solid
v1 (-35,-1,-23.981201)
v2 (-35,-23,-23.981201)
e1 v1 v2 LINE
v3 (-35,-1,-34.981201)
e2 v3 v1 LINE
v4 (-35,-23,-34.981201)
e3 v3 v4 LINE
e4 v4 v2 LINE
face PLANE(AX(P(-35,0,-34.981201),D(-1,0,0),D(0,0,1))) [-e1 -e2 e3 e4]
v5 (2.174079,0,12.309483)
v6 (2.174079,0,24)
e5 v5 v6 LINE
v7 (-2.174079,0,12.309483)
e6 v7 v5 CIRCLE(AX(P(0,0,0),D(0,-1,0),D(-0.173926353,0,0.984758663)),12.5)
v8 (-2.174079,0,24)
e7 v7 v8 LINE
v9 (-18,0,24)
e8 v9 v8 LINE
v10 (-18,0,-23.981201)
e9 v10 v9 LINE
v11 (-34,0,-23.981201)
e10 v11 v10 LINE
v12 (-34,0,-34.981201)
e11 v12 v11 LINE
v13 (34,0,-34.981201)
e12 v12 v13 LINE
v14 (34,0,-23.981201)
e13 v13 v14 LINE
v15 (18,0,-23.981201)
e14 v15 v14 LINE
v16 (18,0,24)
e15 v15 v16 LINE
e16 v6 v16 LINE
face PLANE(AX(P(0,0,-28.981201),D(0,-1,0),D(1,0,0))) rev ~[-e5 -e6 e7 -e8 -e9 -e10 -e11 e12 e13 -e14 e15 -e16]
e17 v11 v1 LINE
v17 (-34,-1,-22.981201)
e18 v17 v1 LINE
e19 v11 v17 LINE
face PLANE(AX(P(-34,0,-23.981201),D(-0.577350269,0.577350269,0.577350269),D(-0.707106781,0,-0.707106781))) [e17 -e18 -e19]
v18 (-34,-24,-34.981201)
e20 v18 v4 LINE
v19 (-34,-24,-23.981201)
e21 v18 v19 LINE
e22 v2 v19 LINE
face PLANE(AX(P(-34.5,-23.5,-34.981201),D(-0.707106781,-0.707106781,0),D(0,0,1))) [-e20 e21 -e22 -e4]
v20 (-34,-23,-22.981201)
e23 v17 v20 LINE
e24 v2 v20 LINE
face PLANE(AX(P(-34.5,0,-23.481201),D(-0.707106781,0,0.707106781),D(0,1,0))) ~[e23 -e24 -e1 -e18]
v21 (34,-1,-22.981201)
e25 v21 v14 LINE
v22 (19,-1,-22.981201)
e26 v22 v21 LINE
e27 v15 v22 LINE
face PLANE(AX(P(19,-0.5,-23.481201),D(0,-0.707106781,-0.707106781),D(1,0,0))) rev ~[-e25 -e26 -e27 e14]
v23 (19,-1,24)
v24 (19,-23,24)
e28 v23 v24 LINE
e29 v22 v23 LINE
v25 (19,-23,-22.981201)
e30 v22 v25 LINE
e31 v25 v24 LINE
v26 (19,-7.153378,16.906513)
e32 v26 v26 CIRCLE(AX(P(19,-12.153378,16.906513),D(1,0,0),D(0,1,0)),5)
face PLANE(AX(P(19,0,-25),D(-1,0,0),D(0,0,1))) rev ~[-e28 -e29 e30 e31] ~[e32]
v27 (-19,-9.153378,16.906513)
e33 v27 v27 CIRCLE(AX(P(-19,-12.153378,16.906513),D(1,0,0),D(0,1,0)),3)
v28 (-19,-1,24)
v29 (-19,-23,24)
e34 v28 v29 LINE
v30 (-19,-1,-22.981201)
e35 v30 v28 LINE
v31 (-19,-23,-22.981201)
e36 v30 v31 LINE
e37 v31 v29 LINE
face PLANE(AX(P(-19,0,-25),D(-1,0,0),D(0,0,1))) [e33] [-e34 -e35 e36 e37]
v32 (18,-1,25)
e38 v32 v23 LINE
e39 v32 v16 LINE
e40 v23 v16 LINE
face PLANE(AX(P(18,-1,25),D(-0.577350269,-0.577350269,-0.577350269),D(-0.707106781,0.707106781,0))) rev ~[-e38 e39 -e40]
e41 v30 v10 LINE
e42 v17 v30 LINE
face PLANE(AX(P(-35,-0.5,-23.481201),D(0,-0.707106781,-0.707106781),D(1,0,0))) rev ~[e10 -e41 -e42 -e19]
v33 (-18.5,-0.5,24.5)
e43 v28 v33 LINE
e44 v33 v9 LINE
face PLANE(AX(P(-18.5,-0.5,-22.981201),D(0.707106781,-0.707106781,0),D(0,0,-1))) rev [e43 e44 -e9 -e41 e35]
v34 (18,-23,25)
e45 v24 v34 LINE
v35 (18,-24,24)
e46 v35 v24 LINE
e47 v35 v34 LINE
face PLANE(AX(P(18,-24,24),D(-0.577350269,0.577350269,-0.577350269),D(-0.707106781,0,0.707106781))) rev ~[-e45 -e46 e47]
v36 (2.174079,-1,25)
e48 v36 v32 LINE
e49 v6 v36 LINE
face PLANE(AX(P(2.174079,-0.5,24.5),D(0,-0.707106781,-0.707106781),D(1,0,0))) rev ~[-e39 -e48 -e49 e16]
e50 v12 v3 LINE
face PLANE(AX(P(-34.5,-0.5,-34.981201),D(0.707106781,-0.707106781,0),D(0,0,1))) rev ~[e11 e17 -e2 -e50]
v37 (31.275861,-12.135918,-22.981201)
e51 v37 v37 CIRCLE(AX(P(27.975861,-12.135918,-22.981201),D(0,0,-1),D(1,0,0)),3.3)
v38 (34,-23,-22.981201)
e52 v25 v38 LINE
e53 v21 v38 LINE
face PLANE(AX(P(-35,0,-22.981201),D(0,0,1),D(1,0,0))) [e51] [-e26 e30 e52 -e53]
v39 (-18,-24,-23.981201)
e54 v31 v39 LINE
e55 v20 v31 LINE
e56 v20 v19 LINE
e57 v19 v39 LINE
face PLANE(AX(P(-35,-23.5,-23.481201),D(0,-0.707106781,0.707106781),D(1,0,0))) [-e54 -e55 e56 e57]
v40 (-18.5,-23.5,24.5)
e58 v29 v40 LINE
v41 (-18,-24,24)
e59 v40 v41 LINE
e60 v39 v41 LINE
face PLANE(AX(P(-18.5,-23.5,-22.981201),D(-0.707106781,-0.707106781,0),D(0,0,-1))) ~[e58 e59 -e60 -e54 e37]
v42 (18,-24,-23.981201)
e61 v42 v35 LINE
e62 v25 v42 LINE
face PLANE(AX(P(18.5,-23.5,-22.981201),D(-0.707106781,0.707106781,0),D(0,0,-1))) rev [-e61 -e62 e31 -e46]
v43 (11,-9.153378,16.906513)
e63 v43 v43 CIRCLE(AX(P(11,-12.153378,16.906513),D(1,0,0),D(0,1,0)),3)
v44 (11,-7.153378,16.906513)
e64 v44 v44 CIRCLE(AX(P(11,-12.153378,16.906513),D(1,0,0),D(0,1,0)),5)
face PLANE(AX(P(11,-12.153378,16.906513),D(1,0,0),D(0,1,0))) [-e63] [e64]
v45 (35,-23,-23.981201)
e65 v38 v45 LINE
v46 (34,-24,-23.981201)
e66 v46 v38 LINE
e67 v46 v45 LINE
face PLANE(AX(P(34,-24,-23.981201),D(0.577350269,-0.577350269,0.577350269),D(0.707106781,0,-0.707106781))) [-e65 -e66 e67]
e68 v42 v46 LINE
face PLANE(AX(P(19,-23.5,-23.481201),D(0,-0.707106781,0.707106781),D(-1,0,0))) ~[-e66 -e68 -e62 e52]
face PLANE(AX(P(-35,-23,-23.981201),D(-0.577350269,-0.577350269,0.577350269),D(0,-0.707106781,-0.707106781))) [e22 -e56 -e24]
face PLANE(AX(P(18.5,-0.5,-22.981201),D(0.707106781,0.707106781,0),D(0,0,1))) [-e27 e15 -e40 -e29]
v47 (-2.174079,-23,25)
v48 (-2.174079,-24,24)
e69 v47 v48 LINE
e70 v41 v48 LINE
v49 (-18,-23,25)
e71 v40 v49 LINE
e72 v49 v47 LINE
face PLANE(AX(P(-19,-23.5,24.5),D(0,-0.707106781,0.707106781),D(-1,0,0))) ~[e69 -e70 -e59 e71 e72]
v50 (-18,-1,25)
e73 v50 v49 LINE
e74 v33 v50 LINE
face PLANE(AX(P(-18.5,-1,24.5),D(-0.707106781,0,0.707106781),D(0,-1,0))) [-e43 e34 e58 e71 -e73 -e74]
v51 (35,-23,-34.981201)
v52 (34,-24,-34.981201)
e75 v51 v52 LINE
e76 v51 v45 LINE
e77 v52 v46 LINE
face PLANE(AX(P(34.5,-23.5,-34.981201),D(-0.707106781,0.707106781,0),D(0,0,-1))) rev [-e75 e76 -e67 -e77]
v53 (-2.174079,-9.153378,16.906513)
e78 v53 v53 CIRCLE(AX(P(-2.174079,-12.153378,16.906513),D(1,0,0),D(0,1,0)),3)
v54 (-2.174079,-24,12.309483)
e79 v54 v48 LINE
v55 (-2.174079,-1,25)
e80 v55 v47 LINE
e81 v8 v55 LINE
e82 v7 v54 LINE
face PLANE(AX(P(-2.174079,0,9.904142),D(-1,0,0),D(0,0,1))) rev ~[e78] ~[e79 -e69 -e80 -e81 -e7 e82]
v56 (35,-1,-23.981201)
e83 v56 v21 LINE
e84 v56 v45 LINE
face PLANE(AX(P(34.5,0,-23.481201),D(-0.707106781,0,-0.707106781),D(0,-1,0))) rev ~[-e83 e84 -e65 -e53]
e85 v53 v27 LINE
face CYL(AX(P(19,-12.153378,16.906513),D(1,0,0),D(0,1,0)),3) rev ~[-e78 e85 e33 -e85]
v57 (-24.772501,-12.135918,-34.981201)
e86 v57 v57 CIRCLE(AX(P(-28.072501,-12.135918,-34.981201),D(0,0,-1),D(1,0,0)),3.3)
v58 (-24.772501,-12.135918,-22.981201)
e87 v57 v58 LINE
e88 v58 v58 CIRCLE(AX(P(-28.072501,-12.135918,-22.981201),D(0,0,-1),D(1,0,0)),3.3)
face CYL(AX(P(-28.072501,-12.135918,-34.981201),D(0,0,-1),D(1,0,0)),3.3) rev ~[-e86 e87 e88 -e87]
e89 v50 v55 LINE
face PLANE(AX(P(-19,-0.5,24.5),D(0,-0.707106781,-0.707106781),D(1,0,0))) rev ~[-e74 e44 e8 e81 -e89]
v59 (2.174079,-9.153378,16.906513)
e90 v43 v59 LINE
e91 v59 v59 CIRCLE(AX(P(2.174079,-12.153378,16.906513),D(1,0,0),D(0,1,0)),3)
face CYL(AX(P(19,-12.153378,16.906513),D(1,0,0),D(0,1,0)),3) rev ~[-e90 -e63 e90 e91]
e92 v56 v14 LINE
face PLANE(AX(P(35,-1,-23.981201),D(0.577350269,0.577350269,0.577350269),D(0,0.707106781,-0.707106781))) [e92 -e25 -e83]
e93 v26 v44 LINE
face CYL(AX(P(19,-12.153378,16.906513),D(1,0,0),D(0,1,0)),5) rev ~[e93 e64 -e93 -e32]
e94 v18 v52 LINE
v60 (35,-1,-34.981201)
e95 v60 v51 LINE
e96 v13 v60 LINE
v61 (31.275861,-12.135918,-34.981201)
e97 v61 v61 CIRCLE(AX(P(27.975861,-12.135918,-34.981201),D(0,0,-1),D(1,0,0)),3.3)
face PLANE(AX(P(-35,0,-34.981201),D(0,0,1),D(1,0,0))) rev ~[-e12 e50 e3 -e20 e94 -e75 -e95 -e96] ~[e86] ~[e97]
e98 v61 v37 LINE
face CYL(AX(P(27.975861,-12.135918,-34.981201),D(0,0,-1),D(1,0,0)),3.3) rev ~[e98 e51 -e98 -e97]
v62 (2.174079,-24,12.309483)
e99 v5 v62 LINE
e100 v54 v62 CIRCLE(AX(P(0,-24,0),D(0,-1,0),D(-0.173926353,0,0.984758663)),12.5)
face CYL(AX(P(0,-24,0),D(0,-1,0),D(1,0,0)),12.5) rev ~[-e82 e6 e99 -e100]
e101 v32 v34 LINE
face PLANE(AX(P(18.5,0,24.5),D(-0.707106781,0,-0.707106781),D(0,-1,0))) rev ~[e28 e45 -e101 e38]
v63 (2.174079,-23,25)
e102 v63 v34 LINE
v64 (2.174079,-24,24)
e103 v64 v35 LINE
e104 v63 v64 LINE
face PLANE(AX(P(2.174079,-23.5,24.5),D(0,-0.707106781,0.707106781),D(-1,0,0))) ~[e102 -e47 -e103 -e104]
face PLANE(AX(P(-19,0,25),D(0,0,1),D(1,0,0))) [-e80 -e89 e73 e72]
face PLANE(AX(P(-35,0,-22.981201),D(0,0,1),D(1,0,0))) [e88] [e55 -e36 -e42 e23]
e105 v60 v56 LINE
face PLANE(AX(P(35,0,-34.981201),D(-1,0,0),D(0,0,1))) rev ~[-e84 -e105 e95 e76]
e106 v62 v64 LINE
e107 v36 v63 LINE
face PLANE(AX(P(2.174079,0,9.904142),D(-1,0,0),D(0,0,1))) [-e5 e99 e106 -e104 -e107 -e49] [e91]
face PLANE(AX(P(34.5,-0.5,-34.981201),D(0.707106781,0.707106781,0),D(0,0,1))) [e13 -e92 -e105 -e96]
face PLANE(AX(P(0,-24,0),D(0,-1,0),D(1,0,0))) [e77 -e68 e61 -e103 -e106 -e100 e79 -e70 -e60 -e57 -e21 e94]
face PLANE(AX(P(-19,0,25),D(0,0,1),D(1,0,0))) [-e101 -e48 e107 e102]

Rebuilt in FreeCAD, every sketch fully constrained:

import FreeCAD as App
import Part
import Sketcher

V = App.Vector
Q = App.Units.Quantity


def edges_at(feature, points):
    """Names of the edges that pass closest to the given points."""
    edges = feature.Shape.Edges
    near = lambda p: min(range(len(edges)), key=lambda i: edges[i].distToShape(Part.Vertex(*p))[0])
    return sorted({f"Edge{near(p) + 1}" for p in points})

doc = App.newDocument("Part")
body = doc.addObject("PartDesign::Body", "Body")

# Sketch on XZ plane
sketch1 = body.newObject("Sketcher::SketchObject", "Sketch")
sketch1.AttachmentSupport = (doc.getObject("XZ_Plane"), [""])
sketch1.MapMode = "FlatFace"
sketch1.addGeometry([
    Part.LineSegment(V(-35, -22.981201, 0), V(-35, -34.981201, 0)),
    Part.LineSegment(V(-35, -34.981201, 0), V(35, -34.981201, 0)),
    Part.LineSegment(V(35, -34.981201, 0), V(35, -22.981201, 0)),
    Part.LineSegment(V(35, -22.981201, 0), V(-35, -22.981201, 0)),
], False)
sketch1.addConstraint([
    Sketcher.Constraint("Coincident", 0, 2, 1, 1),
    Sketcher.Constraint("Coincident", 1, 2, 2, 1),
    Sketcher.Constraint("Coincident", 2, 2, 3, 1),
    Sketcher.Constraint("Coincident", 3, 2, 0, 1),
    Sketcher.Constraint("Vertical", 0),
    Sketcher.Constraint("Horizontal", 1),
    Sketcher.Constraint("Vertical", 2),
    Sketcher.Constraint("Horizontal", 3),
    Sketcher.Constraint("DistanceX", 1, 1, 1, 2, Q("70 mm")),
    Sketcher.Constraint("DistanceY", 0, 2, 0, 1, Q("12 mm")),
    Sketcher.Constraint("DistanceX", 0, 2, -1, 1, Q("35 mm")),
    Sketcher.Constraint("DistanceY", 0, 2, -1, 1, Q("34.981201 mm")),
])
pad1 = body.newObject("PartDesign::Pad", "Pad")
pad1.Profile = sketch1
pad1.Length = 24

# Sketch on XZ plane
sketch2 = body.newObject("Sketcher::SketchObject", "Sketch001")
sketch2.AttachmentSupport = (doc.getObject("XZ_Plane"), [""])
sketch2.MapMode = "FlatFace"
sketch2.addGeometry([
    Part.LineSegment(V(-19, 25, 0), V(-19, -25, 0)),
    Part.LineSegment(V(-19, -25, 0), V(19, -25, 0)),
    Part.LineSegment(V(19, -25, 0), V(19, 25, 0)),
    Part.LineSegment(V(19, 25, 0), V(-19, 25, 0)),
], False)
sketch2.addConstraint([
    Sketcher.Constraint("Coincident", 0, 2, 1, 1),
    Sketcher.Constraint("Coincident", 1, 2, 2, 1),
    Sketcher.Constraint("Coincident", 2, 2, 3, 1),
    Sketcher.Constraint("Coincident", 3, 2, 0, 1),
    Sketcher.Constraint("Vertical", 0),
    Sketcher.Constraint("Horizontal", 1),
    Sketcher.Constraint("Vertical", 2),
    Sketcher.Constraint("Horizontal", 3),
    Sketcher.Constraint("Symmetric", 0, 2, 2, 2, -1, 1),
    Sketcher.Constraint("DistanceX", 1, 1, 1, 2, Q("38 mm")),
    Sketcher.Constraint("DistanceY", 0, 2, 0, 1, Q("50 mm")),
])
pad2 = body.newObject("PartDesign::Pad", "Pad001")
pad2.Profile = sketch2
pad2.Length = 24

# Sketch on XZ plane
sketch3 = body.newObject("Sketcher::SketchObject", "Sketch002")
sketch3.AttachmentSupport = (doc.getObject("XZ_Plane"), [""])
sketch3.MapMode = "FlatFace"
sketch3.AttachmentOffset = App.Placement(V(0, 0, 24), App.Rotation())
sketch3.addGeometry(Part.Circle(V(0, 0, 0), V(0, 0, 1), 12.5), False)
sketch3.addConstraint([
    Sketcher.Constraint("Coincident", 0, 3, -1, 1),
    Sketcher.Constraint("Diameter", 0, Q("25 mm")),
])
pocket1 = body.newObject("PartDesign::Pocket", "Pocket")
pocket1.Profile = sketch3
pocket1.Length = 24

# Sketch on XZ plane
sketch4 = body.newObject("Sketcher::SketchObject", "Sketch003")
sketch4.AttachmentSupport = (doc.getObject("XZ_Plane"), [""])
sketch4.MapMode = "FlatFace"
sketch4.addGeometry([
    Part.LineSegment(V(-2.174079, 28.747369, 0), V(-2.174079, 9.904142, 0)),
    Part.LineSegment(V(-2.174079, 9.904142, 0), V(2.174079, 9.904142, 0)),
    Part.LineSegment(V(2.174079, 9.904142, 0), V(2.174079, 28.747369, 0)),
    Part.LineSegment(V(2.174079, 28.747369, 0), V(-2.174079, 28.747369, 0)),
], False)
sketch4.addConstraint([
    Sketcher.Constraint("Coincident", 0, 2, 1, 1),
    Sketcher.Constraint("Coincident", 1, 2, 2, 1),
    Sketcher.Constraint("Coincident", 2, 2, 3, 1),
    Sketcher.Constraint("Coincident", 3, 2, 0, 1),
    Sketcher.Constraint("Vertical", 0),
    Sketcher.Constraint("Horizontal", 1),
    Sketcher.Constraint("Vertical", 2),
    Sketcher.Constraint("Horizontal", 3),
    Sketcher.Constraint("DistanceX", 1, 1, 1, 2, Q("4.348159 mm")),
    Sketcher.Constraint("DistanceY", 0, 2, 0, 1, Q("18.843226 mm")),
    Sketcher.Constraint("DistanceX", 0, 2, -1, 1, Q("2.174079 mm")),
    Sketcher.Constraint("DistanceY", -1, 1, 2, 2, Q("28.747369 mm")),
])
pocket2 = body.newObject("PartDesign::Pocket", "Pocket001")
pocket2.Profile = sketch4
pocket2.Length = 24
pocket2.Reversed = True

# Sketch on XY plane
sketch5 = body.newObject("Sketcher::SketchObject", "Sketch004")
sketch5.AttachmentSupport = (doc.getObject("XY_Plane"), [""])
sketch5.MapMode = "FlatFace"
sketch5.AttachmentOffset = App.Placement(V(0, 0, -34.981201), App.Rotation())
sketch5.addGeometry(Part.Circle(V(-28.072501, -12.135918, 0), V(0, 0, 1), 3.3), False)
sketch5.addConstraint([
    Sketcher.Constraint("Diameter", 0, Q("6.6 mm")),
    Sketcher.Constraint("DistanceX", 0, 3, -1, 1, Q("28.072501 mm")),
    Sketcher.Constraint("DistanceY", 0, 3, -1, 1, Q("12.135918 mm")),
])
pocket3 = body.newObject("PartDesign::Pocket", "Pocket002")
pocket3.Profile = sketch5
pocket3.Length = 25
pocket3.Reversed = True

# Sketch on XY plane
sketch6 = body.newObject("Sketcher::SketchObject", "Sketch005")
sketch6.AttachmentSupport = (doc.getObject("XY_Plane"), [""])
sketch6.MapMode = "FlatFace"
sketch6.AttachmentOffset = App.Placement(V(0, 0, -34.981201), App.Rotation())
sketch6.addGeometry(Part.Circle(V(27.975861, -12.135918, 0), V(0, 0, 1), 3.3), False)
sketch6.addConstraint([
    Sketcher.Constraint("Diameter", 0, Q("6.6 mm")),
    Sketcher.Constraint("DistanceX", -1, 1, 0, 3, Q("27.975861 mm")),
    Sketcher.Constraint("DistanceY", 0, 3, -1, 1, Q("12.135918 mm")),
])
pocket4 = body.newObject("PartDesign::Pocket", "Pocket003")
pocket4.Profile = sketch6
pocket4.Length = 25
pocket4.Reversed = True

# Sketch on YZ plane
sketch7 = body.newObject("Sketcher::SketchObject", "Sketch006")
sketch7.AttachmentSupport = (doc.getObject("YZ_Plane"), [""])
sketch7.MapMode = "FlatFace"
sketch7.AttachmentOffset = App.Placement(V(0, 0, 19), App.Rotation())
sketch7.addGeometry(Part.Circle(V(-12.153378, 16.906513, 0), V(0, 0, 1), 3), False)
sketch7.addConstraint([
    Sketcher.Constraint("Diameter", 0, Q("6 mm")),
    Sketcher.Constraint("DistanceX", 0, 3, -1, 1, Q("12.153378 mm")),
    Sketcher.Constraint("DistanceY", -1, 1, 0, 3, Q("16.906513 mm")),
])
pocket5 = body.newObject("PartDesign::Pocket", "Pocket004")
pocket5.Profile = sketch7
pocket5.Length = 50

# Sketch on YZ plane
sketch8 = body.newObject("Sketcher::SketchObject", "Sketch007")
sketch8.AttachmentSupport = (doc.getObject("YZ_Plane"), [""])
sketch8.MapMode = "FlatFace"
sketch8.AttachmentOffset = App.Placement(V(0, 0, 19), App.Rotation())
sketch8.addGeometry([
    Part.Circle(V(-12.153378, 16.906513, 0), V(0, 0, 1), 5),
    Part.Circle(V(-12.153378, 16.906513, 0), V(0, 0, 1), 3),
], False)
sketch8.addConstraint([
    Sketcher.Constraint("Coincident", 1, 3, 0, 3),
    Sketcher.Constraint("Diameter", 0, Q("10 mm")),
    Sketcher.Constraint("Diameter", 1, Q("6 mm")),
    Sketcher.Constraint("DistanceX", 0, 3, -1, 1, Q("12.153378 mm")),
    Sketcher.Constraint("DistanceY", -1, 1, 0, 3, Q("16.906513 mm")),
])
pocket6 = body.newObject("PartDesign::Pocket", "Pocket005")
pocket6.Profile = sketch8
pocket6.Length = 8
doc.recompute()

chamfer = body.newObject("PartDesign::Chamfer", "Chamfer")
chamfer.Base = (pocket6, edges_at(pocket6, [
    (19, 0, 1.009),
    (19, -12, 25),
    (19, -24, 1.009),
    (27, 0, -22.981),
    (35, -12, -22.981),
    (27, -24, -22.981),
    (35, 0, -28.981),
    (35, -24, -28.981),
    (10.587, -24, 25),
    (-10.587, -24, 25),
    (-10.587, 0, 25),
    (10.587, 0, 25),
]))
chamfer.Size = 1
doc.recompute()

chamfer2 = body.newObject("PartDesign::Chamfer", "Chamfer001")
chamfer2.Base = (chamfer, edges_at(chamfer, [(-19, -12, 25)]))
chamfer2.Size = 1
doc.recompute()

chamfer3 = body.newObject("PartDesign::Chamfer", "Chamfer002")
chamfer3.Base = (chamfer2, edges_at(chamfer2, [
    (-19, 0, 0.509),
    (-19, -24, 0.509),
    (-27, -24, -22.981),
    (-35, -12, -22.981),
    (-27, 0, -22.981),
    (-35, 0, -28.981),
    (-35, -24, -28.981),
]))
chamfer3.Size = 1

doc.recompute()
